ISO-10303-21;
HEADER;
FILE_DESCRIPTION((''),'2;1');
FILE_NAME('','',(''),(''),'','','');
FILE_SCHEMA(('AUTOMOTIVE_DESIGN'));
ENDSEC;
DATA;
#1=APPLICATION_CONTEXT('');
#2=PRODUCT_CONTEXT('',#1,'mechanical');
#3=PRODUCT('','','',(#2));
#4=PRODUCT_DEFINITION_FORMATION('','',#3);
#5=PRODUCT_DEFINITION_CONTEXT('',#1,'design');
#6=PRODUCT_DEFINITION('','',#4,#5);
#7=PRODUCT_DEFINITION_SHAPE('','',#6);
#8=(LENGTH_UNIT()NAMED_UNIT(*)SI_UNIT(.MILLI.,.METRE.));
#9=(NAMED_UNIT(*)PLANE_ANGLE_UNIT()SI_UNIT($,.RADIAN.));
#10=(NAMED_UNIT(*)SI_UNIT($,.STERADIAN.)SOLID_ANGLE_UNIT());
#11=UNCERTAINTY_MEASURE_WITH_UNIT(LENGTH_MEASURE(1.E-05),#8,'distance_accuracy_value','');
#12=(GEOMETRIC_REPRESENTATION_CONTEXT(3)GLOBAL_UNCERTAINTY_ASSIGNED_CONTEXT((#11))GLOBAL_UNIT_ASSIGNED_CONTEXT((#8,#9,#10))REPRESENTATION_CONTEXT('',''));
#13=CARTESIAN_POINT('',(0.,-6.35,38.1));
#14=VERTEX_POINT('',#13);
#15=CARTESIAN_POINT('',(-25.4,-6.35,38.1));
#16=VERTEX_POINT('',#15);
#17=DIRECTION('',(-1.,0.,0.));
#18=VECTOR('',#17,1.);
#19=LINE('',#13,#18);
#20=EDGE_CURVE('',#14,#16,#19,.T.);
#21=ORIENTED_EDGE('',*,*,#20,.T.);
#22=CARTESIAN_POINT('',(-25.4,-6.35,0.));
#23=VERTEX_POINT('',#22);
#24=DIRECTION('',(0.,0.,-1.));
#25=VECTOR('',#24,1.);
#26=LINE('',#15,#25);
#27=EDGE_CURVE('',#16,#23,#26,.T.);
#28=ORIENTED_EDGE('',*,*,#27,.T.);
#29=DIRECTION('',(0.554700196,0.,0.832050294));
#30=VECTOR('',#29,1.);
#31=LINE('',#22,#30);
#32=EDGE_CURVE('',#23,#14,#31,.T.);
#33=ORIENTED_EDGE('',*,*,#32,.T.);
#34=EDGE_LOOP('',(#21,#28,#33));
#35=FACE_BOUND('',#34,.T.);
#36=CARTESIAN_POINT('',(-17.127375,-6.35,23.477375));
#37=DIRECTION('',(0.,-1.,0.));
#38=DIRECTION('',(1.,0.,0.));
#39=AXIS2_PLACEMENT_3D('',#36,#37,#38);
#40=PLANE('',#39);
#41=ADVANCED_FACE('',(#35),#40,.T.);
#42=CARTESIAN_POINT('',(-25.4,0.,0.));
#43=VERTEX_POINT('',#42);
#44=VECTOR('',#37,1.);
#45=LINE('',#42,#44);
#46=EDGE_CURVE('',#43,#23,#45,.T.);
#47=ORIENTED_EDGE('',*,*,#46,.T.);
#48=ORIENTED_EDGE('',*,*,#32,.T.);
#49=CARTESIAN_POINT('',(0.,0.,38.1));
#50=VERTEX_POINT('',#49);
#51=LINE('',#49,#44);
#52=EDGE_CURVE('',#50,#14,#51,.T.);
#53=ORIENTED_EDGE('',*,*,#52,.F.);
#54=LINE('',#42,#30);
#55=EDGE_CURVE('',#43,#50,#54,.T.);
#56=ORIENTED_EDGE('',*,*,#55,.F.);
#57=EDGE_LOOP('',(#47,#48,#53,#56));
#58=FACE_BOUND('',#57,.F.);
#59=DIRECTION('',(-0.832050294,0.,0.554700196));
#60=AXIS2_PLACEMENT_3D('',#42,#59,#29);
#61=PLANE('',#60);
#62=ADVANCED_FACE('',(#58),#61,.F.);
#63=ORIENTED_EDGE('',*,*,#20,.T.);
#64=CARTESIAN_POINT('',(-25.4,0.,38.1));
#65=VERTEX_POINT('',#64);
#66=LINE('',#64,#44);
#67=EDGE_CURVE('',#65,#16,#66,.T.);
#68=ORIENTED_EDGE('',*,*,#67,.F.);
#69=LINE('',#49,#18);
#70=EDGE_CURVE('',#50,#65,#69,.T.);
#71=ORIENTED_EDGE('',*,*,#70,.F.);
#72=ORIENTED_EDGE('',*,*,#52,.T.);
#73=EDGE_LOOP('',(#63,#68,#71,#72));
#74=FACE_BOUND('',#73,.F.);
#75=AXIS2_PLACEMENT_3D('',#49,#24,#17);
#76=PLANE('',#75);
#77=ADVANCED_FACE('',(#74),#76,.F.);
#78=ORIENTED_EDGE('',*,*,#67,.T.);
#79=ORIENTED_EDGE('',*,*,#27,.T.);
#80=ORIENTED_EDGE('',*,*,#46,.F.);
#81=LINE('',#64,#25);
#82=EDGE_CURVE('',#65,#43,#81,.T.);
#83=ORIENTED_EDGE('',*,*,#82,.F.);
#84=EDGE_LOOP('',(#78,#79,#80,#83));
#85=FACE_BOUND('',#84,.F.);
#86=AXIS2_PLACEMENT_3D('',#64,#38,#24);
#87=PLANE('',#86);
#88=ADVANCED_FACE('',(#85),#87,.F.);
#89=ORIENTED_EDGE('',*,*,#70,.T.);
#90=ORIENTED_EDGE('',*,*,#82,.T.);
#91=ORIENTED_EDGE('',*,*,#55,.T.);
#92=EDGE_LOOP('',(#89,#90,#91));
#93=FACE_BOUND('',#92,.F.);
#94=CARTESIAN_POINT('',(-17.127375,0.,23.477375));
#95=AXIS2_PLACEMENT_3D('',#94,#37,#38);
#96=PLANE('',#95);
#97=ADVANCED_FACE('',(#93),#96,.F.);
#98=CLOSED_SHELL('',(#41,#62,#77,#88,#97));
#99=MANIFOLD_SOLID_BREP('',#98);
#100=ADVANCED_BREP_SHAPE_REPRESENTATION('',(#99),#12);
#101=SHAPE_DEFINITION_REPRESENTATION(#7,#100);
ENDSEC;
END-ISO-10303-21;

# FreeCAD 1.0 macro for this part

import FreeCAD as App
import Part
import Sketcher
from FreeCAD import Vector
Q = App.Units.Quantity

doc = App.newDocument("Part")
body = doc.addObject("PartDesign::Body", "Body")

# Sketch on XZ plane
sketch1 = doc.addObject("Sketcher::SketchObject", "Sketch")
body.addObject(sketch1)
sketch1.AttachmentSupport = (doc.XZ_Plane, [""])
sketch1.MapMode = "FlatFace"
sketch1.addGeometry(Part.LineSegment(Vector(-25, 0, 0), Vector(0, 38, 0)), False)
sketch1.addGeometry(Part.LineSegment(Vector(0, 38, 0), Vector(-25, 38, 0)), False)
sketch1.addGeometry(Part.LineSegment(Vector(-25, 38, 0), Vector(-25, 0, 0)), False)
sketch1.addConstraint(Sketcher.Constraint("Coincident", 0, 2, 1, 1))
sketch1.addConstraint(Sketcher.Constraint("Coincident", 1, 2, 2, 1))
sketch1.addConstraint(Sketcher.Constraint("Coincident", 2, 2, 0, 1))
sketch1.addConstraint(Sketcher.Constraint("Horizontal", 1))
sketch1.addConstraint(Sketcher.Constraint("Vertical", 2))
sketch1.addConstraint(Sketcher.Constraint("PointOnObject", 0, 2, -2))
sketch1.addConstraint(Sketcher.Constraint("PointOnObject", 2, 2, -1))
sketch1.addConstraint(Sketcher.Constraint("DistanceX", 1, 2, 1, 1, Q("1 in")))
sketch1.addConstraint(Sketcher.Constraint("DistanceY", 2, 2, 2, 1, Q("1.5 in")))
pad1 = doc.addObject("PartDesign::Pad", "Pad")
body.addObject(pad1)
pad1.Profile = sketch1
pad1.Length = Q("0.25 in")

doc.recompute()
